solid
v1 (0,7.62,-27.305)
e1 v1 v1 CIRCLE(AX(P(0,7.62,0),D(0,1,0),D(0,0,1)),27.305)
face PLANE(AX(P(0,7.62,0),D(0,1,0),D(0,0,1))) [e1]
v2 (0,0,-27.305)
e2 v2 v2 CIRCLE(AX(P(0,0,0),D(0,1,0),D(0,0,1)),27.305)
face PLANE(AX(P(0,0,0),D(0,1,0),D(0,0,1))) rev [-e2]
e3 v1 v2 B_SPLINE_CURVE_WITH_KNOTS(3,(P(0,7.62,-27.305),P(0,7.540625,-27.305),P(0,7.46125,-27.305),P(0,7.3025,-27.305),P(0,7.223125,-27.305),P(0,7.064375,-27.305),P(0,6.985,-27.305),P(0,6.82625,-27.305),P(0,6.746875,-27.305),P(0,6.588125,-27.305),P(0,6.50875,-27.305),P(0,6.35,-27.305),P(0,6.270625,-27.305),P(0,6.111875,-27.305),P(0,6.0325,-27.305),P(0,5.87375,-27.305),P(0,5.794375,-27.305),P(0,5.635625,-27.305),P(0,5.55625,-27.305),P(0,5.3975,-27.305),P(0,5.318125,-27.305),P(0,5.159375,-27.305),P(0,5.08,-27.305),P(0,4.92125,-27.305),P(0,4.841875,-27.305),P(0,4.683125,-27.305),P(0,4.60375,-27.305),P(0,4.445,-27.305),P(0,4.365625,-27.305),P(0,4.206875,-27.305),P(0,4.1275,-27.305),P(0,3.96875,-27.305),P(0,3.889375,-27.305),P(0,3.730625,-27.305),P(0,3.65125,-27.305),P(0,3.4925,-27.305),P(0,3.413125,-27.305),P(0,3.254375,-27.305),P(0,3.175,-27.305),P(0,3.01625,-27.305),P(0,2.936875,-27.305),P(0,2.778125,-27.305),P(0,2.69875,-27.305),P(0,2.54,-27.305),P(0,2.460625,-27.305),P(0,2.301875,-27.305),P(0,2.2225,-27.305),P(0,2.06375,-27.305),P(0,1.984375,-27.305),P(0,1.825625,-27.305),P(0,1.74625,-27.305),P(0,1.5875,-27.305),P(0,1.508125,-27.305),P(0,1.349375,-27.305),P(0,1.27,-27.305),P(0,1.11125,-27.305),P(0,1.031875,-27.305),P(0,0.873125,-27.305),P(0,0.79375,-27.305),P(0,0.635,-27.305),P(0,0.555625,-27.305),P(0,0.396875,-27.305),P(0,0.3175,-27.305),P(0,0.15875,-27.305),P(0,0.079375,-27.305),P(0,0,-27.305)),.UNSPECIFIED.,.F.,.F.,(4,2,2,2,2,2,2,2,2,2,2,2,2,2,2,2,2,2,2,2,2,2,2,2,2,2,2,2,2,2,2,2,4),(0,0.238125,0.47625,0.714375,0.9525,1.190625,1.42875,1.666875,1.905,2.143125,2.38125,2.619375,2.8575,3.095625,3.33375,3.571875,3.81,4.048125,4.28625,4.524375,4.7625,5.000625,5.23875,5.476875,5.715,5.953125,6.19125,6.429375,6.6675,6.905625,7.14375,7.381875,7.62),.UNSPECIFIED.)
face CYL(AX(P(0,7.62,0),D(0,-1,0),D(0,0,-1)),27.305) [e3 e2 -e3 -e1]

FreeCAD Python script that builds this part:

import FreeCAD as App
import Part
import Sketcher
Q = App.Units.Quantity

doc = App.newDocument("Part")
body = doc.addObject("PartDesign::Body", "Body")

sketch1 = body.newObject("Sketcher::SketchObject", "Sketch")
sketch1.AttachmentSupport = (doc.getObject("XZ_Plane"), [""])
sketch1.MapMode = "FlatFace"
sketch1.addGeometry(Part.Circle(App.Vector(0, 0, 0), App.Vector(0, 0, 1), 27), False)
sketch1.addConstraint(Sketcher.Constraint("Coincident", 0, 3, -1, 1))
sketch1.addConstraint(Sketcher.Constraint("Diameter", 0, Q("2.15 in")))
pad1 = body.newObject("PartDesign::Pad", "Pad")
pad1.Profile = sketch1
pad1.Length = Q("0.3 in")
pad1.Reversed = True

doc.recompute()
